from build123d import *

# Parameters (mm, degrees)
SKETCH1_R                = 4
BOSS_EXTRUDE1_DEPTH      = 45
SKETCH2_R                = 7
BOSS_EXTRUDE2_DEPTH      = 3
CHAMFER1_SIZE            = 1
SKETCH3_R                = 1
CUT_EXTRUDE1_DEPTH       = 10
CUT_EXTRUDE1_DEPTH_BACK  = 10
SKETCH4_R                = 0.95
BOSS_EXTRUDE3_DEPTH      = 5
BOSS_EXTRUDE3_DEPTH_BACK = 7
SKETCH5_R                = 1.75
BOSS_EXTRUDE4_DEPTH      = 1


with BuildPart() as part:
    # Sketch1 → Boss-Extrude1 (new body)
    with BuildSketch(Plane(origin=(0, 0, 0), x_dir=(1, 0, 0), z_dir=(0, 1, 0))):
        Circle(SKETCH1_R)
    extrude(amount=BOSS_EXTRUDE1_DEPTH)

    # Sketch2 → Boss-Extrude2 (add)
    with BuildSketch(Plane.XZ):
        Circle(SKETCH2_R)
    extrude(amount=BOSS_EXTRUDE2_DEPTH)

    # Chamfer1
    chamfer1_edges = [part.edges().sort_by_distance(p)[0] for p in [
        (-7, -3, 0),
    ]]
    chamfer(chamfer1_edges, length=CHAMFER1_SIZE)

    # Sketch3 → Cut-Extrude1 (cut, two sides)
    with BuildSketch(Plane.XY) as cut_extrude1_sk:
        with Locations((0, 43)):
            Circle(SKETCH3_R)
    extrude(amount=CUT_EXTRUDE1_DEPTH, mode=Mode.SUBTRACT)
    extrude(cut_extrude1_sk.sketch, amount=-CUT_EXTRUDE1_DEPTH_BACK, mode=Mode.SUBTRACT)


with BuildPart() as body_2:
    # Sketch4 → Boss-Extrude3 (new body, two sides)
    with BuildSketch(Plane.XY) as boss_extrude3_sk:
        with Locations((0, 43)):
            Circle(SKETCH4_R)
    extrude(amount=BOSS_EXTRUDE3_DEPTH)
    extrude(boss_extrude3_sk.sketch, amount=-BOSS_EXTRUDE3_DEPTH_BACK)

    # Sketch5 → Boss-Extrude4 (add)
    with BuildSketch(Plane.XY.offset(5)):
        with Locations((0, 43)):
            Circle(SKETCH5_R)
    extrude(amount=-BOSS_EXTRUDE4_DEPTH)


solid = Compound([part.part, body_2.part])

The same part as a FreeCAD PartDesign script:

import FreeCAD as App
import Part
import Sketcher
from FreeCAD import Vector
Q = App.Units.Quantity


def edges_at(feature, points):
    """Names of the edges that pass closest to the given points."""
    edges = feature.Shape.Edges
    near = lambda p: min(range(len(edges)), key=lambda i: edges[i].distToShape(Part.Vertex(*p))[0])
    return sorted({f"Edge{near(p) + 1}" for p in points})

doc = App.newDocument("Part")
body = doc.addObject("PartDesign::Body", "Body")

# Sketch on XZ plane
sketch1 = body.newObject("Sketcher::SketchObject", "Sketch")
sketch1.AttachmentSupport = (doc.getObject("XZ_Plane"), [""])
sketch1.MapMode = "FlatFace"
sketch1.addGeometry(Part.Circle(Vector(0, 0, 0), Vector(0, 0, 1), 4), False)
sketch1.addConstraint([
    Sketcher.Constraint("Coincident", 0, 3, -1, 1),
    Sketcher.Constraint("Diameter", 0, Q("8 mm")),
])
pad1 = body.newObject("PartDesign::Pad", "Pad")
pad1.Profile = sketch1
pad1.Length = 45
pad1.Reversed = True

# Sketch on XZ plane
sketch2 = body.newObject("Sketcher::SketchObject", "Sketch001")
sketch2.AttachmentSupport = (doc.getObject("XZ_Plane"), [""])
sketch2.MapMode = "FlatFace"
sketch2.addGeometry(Part.Circle(Vector(0, 0, 0), Vector(0, 0, 1), 7), False)
sketch2.addConstraint([
    Sketcher.Constraint("Coincident", 0, 3, -1, 1),
    Sketcher.Constraint("Diameter", 0, Q("14 mm")),
])
pad2 = body.newObject("PartDesign::Pad", "Pad001")
pad2.Profile = sketch2
pad2.Length = 3
doc.recompute()

chamfer = body.newObject("PartDesign::Chamfer", "Chamfer")
chamfer.Base = (pad2, edges_at(pad2, [(-7, -3, 0)]))
chamfer.Size = 1

# Sketch on XY plane
sketch3 = body.newObject("Sketcher::SketchObject", "Sketch002")
sketch3.AttachmentSupport = (doc.getObject("XY_Plane"), [""])
sketch3.MapMode = "FlatFace"
sketch3.addGeometry(Part.Circle(Vector(0, 43, 0), Vector(0, 0, 1), 1), False)
sketch3.addConstraint([
    Sketcher.Constraint("PointOnObject", 0, 3, -2),
    Sketcher.Constraint("Diameter", 0, Q("2 mm")),
    Sketcher.Constraint("DistanceY", -1, 1, 0, 3, Q("43 mm")),
])
pocket1 = body.newObject("PartDesign::Pocket", "Pocket")
pocket1.Profile = sketch3
pocket1.Type = "ThroughAll"
pocket1.Midplane = True
body2 = doc.addObject("PartDesign::Body", "Body001")

# Sketch on XY plane
sketch4 = body2.newObject("Sketcher::SketchObject", "Sketch003")
sketch4.AttachmentSupport = (doc.getObject("XY_Plane001"), [""])
sketch4.MapMode = "FlatFace"
sketch4.addGeometry(Part.Circle(Vector(0, 43, 0), Vector(0, 0, 1), 0.9), False)
sketch4.addConstraint([
    Sketcher.Constraint("PointOnObject", 0, 3, -2),
    Sketcher.Constraint("Diameter", 0, Q("1.9 mm")),
    Sketcher.Constraint("DistanceY", -1, 1, 0, 3, Q("43 mm")),
])
pad3 = body2.newObject("PartDesign::Pad", "Pad002")
pad3.Profile = sketch4
pad3.Type = "TwoLengths"
pad3.Length = 5
pad3.Length2 = 7

# Sketch on XY plane
sketch5 = body2.newObject("Sketcher::SketchObject", "Sketch004")
sketch5.AttachmentSupport = (doc.getObject("XY_Plane001"), [""])
sketch5.MapMode = "FlatFace"
sketch5.AttachmentOffset = App.Placement(Vector(0, 0, 5), App.Rotation())
sketch5.addGeometry(Part.Circle(Vector(0, 43, 0), Vector(0, 0, 1), 1.8), False)
sketch5.addConstraint([
    Sketcher.Constraint("PointOnObject", 0, 3, -2),
    Sketcher.Constraint("Diameter", 0, Q("3.5 mm")),
    Sketcher.Constraint("DistanceY", -1, 1, 0, 3, Q("43 mm")),
])
pad4 = body2.newObject("PartDesign::Pad", "Pad003")
pad4.Profile = sketch5
pad4.Length = 1
pad4.Reversed = True

doc.recompute()
